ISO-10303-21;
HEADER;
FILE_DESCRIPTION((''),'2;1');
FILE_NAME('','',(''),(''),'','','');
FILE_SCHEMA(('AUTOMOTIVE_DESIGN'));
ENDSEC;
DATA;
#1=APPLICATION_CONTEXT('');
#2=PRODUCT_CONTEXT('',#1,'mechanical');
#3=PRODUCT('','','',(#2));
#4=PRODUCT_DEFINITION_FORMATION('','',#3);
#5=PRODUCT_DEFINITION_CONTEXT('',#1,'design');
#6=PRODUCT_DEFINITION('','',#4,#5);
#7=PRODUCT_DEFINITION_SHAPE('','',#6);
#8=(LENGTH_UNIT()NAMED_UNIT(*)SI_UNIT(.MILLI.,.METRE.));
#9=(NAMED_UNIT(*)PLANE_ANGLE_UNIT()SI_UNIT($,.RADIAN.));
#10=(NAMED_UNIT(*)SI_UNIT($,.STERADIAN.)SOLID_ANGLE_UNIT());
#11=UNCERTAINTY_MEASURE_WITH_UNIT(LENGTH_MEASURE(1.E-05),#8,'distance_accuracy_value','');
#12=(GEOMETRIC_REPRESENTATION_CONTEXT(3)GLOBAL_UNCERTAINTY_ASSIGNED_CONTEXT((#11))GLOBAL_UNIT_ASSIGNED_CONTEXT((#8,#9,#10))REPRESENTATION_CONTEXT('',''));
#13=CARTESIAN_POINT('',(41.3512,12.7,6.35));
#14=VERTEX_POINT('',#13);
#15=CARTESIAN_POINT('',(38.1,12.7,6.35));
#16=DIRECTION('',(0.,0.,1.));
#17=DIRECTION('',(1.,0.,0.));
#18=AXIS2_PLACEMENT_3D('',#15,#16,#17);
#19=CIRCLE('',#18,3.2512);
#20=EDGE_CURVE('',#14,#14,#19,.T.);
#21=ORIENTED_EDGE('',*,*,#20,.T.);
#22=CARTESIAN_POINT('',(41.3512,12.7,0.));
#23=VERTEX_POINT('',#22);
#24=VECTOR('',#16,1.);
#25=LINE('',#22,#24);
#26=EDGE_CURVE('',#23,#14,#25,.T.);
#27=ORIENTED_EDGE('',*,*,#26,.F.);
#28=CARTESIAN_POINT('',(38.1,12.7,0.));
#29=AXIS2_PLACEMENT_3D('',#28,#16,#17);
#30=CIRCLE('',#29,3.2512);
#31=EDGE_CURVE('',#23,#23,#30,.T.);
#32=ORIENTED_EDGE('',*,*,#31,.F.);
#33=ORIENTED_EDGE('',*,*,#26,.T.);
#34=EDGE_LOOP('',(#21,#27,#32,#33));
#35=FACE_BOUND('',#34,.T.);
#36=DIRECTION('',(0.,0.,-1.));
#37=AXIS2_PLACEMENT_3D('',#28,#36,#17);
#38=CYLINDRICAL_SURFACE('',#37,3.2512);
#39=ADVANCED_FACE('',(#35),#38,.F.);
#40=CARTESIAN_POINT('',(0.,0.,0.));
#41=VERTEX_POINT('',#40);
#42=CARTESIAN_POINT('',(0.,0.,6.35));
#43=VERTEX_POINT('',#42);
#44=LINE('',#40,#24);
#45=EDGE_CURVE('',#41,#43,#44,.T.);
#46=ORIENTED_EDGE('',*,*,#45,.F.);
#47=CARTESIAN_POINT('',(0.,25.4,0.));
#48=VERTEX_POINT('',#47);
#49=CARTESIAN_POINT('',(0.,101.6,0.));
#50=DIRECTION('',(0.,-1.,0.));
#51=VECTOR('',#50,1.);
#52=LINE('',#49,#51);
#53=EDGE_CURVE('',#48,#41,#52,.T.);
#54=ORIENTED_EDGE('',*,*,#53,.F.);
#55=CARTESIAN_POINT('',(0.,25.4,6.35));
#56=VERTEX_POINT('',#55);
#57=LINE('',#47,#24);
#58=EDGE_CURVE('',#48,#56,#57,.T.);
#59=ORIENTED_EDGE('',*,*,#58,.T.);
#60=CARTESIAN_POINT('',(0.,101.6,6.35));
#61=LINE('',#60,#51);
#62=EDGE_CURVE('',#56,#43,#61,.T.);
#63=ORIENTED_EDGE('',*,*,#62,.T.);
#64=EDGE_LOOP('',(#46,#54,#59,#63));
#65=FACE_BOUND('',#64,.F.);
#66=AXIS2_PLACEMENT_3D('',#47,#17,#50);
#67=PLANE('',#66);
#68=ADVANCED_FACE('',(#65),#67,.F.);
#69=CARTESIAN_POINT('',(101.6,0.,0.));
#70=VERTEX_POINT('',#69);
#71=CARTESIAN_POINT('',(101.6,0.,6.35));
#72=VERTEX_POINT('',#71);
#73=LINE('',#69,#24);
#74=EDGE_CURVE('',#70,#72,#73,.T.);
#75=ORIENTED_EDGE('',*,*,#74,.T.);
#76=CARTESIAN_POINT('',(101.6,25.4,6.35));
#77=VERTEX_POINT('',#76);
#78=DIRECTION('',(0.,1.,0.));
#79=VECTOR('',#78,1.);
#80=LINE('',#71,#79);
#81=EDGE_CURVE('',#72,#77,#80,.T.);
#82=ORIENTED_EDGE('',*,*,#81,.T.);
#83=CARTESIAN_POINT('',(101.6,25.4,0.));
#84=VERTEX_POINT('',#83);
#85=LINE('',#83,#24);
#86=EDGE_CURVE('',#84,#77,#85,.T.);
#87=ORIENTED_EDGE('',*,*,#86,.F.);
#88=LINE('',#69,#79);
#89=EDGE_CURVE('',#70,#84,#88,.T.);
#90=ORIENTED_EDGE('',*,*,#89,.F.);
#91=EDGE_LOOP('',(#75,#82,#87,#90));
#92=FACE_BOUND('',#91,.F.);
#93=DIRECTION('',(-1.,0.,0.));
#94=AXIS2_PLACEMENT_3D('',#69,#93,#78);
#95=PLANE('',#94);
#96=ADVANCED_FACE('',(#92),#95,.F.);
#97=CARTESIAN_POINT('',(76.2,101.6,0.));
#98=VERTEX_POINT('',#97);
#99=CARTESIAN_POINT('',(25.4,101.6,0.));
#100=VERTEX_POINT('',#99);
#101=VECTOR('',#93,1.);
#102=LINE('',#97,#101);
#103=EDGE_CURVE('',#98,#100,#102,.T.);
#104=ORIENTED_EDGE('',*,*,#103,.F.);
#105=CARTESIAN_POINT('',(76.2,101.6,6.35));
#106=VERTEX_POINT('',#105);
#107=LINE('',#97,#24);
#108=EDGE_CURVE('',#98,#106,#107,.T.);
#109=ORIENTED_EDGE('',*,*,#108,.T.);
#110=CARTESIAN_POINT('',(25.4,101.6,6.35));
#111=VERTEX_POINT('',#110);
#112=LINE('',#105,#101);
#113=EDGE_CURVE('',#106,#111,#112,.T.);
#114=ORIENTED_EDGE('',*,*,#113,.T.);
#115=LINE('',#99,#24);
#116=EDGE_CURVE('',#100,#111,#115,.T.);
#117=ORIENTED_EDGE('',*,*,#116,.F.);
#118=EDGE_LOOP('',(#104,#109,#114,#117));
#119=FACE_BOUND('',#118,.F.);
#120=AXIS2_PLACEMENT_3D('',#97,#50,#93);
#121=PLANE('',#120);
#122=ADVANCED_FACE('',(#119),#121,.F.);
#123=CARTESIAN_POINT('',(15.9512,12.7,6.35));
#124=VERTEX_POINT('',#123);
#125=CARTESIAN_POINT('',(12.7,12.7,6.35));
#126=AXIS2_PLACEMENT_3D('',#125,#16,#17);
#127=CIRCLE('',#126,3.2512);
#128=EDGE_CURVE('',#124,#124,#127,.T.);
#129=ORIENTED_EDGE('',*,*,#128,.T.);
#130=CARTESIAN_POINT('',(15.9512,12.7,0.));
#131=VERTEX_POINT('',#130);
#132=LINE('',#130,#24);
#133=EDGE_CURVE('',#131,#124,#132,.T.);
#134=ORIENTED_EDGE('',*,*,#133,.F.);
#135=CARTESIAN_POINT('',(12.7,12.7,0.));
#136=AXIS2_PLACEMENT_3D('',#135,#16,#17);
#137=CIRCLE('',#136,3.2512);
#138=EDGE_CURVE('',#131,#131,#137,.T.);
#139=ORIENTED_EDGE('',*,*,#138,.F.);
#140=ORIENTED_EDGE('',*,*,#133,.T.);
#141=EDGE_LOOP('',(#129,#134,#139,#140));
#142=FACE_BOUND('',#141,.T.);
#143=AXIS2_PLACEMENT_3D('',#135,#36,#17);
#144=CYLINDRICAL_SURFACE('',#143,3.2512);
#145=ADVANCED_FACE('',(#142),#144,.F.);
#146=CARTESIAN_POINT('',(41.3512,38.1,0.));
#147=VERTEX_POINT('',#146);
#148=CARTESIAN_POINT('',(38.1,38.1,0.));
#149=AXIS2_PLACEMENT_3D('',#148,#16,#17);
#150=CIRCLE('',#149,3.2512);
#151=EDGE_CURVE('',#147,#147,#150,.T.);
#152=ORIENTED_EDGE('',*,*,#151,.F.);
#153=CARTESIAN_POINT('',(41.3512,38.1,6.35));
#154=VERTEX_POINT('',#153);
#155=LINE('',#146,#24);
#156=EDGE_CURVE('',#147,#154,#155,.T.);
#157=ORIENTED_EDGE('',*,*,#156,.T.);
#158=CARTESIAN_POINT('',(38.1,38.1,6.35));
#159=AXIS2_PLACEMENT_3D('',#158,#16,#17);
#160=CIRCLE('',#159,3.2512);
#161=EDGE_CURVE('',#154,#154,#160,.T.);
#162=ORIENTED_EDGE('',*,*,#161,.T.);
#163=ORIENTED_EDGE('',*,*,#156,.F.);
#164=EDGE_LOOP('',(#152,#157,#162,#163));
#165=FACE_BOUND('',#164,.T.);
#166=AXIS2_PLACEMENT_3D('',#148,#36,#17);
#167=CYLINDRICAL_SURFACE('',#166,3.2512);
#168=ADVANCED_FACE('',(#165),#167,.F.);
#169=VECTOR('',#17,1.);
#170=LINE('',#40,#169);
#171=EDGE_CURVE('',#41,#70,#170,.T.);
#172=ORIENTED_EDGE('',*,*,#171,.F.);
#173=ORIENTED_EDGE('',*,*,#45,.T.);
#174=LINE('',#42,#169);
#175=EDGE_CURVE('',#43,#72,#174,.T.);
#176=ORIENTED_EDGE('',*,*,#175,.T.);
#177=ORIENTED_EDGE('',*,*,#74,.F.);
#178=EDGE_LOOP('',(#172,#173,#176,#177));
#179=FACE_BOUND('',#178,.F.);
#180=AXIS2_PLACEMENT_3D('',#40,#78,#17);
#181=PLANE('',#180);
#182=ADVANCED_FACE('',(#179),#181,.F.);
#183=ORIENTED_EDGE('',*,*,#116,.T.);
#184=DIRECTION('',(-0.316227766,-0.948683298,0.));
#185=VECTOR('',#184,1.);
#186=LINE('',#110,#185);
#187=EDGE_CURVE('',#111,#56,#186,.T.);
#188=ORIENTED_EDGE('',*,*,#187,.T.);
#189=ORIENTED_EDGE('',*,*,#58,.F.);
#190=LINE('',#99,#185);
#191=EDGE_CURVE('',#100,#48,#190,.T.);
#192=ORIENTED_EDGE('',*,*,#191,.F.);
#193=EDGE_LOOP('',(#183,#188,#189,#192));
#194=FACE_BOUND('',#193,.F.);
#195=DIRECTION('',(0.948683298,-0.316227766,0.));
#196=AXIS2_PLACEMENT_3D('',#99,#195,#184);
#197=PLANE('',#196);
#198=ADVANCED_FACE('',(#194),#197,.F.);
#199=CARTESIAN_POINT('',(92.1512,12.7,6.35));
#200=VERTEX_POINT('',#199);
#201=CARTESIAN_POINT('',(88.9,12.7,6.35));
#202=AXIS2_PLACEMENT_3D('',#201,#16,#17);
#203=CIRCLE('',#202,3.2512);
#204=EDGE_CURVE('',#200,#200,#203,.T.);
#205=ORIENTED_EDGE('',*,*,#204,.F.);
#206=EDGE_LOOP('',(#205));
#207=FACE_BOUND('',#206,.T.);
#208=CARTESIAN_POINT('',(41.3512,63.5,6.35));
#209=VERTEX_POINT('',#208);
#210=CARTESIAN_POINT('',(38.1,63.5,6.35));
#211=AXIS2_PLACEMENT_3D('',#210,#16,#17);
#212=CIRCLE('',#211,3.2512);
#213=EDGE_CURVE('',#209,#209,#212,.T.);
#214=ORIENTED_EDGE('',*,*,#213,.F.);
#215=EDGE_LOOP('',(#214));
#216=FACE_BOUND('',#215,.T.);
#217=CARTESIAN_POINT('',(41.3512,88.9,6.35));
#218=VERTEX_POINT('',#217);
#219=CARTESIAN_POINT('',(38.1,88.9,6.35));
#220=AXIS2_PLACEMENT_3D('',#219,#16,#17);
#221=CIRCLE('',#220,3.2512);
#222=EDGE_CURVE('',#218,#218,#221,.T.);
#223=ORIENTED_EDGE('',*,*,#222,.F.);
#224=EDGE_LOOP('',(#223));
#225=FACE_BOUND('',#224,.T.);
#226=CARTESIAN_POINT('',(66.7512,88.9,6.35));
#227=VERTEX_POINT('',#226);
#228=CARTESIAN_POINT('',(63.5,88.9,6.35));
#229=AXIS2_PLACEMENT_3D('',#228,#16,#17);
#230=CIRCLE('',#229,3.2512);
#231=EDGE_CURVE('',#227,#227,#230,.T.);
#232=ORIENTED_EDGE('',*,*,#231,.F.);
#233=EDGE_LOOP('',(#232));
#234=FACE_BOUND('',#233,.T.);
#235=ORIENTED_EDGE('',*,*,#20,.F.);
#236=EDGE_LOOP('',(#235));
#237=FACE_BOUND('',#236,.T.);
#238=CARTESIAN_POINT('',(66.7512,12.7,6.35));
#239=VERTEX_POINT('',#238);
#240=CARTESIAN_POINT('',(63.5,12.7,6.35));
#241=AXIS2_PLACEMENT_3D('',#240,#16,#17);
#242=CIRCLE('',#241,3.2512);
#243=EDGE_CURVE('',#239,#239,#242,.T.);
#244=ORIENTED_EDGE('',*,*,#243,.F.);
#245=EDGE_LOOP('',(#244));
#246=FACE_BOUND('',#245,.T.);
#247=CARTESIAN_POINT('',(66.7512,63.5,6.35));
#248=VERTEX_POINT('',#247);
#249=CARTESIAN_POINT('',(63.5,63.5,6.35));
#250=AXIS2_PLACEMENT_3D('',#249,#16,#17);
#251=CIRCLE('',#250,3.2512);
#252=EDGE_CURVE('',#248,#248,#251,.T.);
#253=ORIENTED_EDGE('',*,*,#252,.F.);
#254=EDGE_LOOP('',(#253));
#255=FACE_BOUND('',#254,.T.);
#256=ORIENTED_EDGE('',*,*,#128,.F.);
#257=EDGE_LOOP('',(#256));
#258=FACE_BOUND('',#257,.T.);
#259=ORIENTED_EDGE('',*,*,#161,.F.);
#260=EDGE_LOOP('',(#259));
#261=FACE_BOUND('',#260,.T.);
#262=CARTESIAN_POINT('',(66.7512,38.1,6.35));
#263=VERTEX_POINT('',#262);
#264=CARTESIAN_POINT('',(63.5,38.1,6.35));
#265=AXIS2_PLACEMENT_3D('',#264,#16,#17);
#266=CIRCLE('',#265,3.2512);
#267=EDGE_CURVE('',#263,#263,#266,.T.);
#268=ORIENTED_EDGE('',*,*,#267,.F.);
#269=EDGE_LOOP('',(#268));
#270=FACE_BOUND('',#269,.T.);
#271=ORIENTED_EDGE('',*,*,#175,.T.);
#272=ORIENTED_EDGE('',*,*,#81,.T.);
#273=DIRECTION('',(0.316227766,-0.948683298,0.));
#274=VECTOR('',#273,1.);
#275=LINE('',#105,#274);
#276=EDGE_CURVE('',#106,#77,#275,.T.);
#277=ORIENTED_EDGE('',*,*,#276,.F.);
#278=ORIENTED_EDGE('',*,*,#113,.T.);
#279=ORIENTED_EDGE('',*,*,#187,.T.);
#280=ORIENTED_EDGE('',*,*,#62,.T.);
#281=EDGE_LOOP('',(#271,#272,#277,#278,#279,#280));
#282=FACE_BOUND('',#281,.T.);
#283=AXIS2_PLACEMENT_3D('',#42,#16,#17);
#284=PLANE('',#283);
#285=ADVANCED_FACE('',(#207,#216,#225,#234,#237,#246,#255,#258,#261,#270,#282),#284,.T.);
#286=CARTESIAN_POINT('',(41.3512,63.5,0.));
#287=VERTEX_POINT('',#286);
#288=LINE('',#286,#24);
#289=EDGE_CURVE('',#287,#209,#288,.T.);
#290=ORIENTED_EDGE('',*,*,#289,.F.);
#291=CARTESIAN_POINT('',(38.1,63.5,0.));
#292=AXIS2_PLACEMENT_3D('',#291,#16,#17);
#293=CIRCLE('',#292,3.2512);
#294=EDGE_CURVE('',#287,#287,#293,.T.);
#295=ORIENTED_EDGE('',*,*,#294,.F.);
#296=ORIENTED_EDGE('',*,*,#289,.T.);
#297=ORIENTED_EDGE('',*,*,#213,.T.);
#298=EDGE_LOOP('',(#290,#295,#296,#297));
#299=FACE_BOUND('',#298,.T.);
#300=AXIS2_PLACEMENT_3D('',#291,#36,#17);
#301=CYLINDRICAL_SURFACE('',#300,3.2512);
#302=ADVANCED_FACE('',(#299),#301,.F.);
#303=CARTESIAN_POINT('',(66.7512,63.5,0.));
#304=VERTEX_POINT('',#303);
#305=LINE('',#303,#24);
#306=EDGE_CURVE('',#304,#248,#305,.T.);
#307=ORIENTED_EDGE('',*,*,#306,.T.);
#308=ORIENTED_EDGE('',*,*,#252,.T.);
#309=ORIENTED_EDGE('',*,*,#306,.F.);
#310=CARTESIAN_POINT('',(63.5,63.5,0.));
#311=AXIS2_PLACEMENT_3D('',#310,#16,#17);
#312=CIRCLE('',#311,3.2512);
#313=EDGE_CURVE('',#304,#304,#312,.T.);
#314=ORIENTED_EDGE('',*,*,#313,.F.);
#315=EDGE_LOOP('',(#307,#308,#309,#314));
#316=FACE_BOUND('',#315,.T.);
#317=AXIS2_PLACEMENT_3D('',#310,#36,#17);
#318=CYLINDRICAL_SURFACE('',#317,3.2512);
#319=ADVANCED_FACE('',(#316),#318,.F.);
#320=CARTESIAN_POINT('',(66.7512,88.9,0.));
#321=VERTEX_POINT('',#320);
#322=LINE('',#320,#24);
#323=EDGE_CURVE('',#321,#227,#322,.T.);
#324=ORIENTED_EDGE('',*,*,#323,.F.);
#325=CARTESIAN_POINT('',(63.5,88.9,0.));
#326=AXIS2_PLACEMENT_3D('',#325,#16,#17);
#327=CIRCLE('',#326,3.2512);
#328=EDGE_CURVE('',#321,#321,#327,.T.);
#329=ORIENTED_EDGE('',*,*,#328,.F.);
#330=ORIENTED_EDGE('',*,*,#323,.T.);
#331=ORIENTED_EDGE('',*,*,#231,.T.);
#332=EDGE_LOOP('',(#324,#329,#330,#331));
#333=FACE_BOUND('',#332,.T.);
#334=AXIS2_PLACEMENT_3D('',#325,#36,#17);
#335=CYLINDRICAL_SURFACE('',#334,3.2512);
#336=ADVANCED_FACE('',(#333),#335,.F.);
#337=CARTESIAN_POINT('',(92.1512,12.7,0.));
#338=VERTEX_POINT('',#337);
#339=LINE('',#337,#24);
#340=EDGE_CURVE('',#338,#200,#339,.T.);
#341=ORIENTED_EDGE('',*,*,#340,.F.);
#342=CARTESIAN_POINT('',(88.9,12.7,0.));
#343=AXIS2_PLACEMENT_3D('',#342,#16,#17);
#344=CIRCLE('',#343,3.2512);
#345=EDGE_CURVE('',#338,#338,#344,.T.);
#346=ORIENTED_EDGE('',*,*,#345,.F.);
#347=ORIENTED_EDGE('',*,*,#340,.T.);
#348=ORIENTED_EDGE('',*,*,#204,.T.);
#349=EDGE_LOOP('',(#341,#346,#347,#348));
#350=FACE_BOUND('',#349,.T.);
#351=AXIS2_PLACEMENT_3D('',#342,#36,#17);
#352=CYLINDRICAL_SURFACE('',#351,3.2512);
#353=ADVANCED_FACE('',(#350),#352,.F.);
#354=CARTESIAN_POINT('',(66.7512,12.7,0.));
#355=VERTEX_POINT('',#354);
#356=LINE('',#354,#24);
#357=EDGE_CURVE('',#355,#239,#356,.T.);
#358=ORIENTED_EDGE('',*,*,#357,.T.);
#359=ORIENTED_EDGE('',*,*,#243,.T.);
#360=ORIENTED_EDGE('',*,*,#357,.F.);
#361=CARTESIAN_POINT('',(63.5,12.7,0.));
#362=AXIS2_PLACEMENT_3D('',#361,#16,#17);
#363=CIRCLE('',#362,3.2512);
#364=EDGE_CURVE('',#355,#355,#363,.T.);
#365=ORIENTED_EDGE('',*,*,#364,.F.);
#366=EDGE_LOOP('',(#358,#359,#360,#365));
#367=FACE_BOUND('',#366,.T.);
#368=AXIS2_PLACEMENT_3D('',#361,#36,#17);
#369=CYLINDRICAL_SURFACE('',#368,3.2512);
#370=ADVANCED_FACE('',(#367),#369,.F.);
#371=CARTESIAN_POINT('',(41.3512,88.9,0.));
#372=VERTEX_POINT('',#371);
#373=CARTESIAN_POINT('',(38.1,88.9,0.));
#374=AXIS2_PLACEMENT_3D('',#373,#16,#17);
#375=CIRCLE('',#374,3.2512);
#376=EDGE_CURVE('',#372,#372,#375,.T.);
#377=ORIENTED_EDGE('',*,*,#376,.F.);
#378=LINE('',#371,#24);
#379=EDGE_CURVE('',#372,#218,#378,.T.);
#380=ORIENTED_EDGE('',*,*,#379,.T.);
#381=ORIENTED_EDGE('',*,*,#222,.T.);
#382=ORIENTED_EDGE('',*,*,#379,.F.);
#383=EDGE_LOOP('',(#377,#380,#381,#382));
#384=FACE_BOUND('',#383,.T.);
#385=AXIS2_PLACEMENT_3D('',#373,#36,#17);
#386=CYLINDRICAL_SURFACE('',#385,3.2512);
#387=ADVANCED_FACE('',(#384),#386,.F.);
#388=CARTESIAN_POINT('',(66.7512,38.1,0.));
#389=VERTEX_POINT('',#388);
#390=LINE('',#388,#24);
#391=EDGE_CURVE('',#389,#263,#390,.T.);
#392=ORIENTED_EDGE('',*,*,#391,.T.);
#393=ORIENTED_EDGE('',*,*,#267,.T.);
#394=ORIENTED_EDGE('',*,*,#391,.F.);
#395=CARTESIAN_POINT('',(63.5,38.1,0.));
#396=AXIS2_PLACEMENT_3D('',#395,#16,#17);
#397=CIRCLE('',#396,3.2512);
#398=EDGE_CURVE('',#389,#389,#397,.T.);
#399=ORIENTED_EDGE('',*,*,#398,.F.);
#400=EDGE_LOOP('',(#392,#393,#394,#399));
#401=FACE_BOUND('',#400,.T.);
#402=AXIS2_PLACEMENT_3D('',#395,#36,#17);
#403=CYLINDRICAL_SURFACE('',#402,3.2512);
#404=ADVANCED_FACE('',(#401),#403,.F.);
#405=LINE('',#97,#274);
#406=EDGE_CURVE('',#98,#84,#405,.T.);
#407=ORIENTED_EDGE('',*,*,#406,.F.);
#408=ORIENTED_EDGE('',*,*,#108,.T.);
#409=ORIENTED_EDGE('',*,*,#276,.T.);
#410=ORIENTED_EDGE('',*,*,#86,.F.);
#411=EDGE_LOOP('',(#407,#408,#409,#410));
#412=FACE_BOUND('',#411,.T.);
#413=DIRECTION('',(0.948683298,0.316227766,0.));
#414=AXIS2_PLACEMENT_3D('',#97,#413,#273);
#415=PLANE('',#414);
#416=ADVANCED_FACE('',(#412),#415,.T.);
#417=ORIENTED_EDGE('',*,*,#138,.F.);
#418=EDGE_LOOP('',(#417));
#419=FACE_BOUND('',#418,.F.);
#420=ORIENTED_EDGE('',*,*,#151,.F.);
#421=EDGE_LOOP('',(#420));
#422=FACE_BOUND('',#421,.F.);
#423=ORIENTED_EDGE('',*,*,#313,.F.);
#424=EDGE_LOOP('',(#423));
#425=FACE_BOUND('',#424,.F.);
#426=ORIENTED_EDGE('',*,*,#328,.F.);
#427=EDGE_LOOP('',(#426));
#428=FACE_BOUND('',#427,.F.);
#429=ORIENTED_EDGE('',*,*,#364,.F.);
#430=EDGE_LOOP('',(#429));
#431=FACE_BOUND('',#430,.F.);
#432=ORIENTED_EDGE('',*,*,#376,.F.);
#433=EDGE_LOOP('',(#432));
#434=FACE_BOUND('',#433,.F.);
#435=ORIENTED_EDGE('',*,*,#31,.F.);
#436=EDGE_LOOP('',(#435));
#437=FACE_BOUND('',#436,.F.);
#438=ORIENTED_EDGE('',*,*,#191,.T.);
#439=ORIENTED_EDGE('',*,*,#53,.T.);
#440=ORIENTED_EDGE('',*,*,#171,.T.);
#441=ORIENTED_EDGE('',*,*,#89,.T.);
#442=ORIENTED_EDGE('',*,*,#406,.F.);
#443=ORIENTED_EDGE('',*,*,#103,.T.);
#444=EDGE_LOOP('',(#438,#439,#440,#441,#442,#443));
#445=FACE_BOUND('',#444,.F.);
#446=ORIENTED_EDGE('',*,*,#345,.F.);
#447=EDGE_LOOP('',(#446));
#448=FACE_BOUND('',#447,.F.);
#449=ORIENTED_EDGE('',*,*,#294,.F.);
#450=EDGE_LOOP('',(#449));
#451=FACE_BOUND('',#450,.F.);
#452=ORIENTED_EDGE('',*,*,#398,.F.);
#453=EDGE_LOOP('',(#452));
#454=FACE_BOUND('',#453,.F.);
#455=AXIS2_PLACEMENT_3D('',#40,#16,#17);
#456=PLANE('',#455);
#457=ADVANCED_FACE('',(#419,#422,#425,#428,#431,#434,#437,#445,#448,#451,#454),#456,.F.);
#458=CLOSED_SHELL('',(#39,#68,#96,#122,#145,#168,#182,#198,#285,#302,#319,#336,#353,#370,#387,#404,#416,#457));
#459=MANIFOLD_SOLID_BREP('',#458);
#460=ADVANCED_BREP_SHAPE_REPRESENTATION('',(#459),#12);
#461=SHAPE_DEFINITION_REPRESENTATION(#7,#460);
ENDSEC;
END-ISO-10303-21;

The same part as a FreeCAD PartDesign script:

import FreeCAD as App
import Part
import Sketcher
Q = App.Units.Quantity

doc = App.newDocument("Part")
body = doc.addObject("PartDesign::Body", "Body")

sketch1 = doc.addObject("Sketcher::SketchObject", "Sketch")
body.addObject(sketch1)
sketch1.AttachmentSupport = (doc.XY_Plane, [""])
sketch1.MapMode = "FlatFace"
sketch1.addGeometry([
    Part.LineSegment(App.Vector(0, 25.4, 0), App.Vector(0, 0, 0)),
    Part.LineSegment(App.Vector(0, 0, 0), App.Vector(101.6, 0, 0)),
    Part.LineSegment(App.Vector(101.6, 0, 0), App.Vector(101.6, 25.4, 0)),
    Part.LineSegment(App.Vector(101.6, 25.4, 0), App.Vector(76.2, 101.6, 0)),
    Part.LineSegment(App.Vector(76.2, 101.6, 0), App.Vector(25.4, 101.6, 0)),
    Part.LineSegment(App.Vector(25.4, 101.6, 0), App.Vector(0, 25.4, 0)),
    Part.Circle(App.Vector(12.7, 12.7, 0), App.Vector(0, 0, 1), 3.3),
    Part.Circle(App.Vector(38.1, 12.7, 0), App.Vector(0, 0, 1), 3.3),
    Part.Circle(App.Vector(38.1, 38.1, 0), App.Vector(0, 0, 1), 3.3),
    Part.Circle(App.Vector(63.5, 12.7, 0), App.Vector(0, 0, 1), 3.3),
    Part.Circle(App.Vector(88.9, 12.7, 0), App.Vector(0, 0, 1), 3.3),
    Part.Circle(App.Vector(63.5, 38.1, 0), App.Vector(0, 0, 1), 3.3),
    Part.Circle(App.Vector(38.1, 63.5, 0), App.Vector(0, 0, 1), 3.3),
    Part.Circle(App.Vector(38.1, 88.9, 0), App.Vector(0, 0, 1), 3.3),
    Part.Circle(App.Vector(63.5, 63.5, 0), App.Vector(0, 0, 1), 3.3),
    Part.Circle(App.Vector(63.5, 88.9, 0), App.Vector(0, 0, 1), 3.3),
], False)
sketch1.addConstraint([
    Sketcher.Constraint("Coincident", 0, 2, 1, 1),
    Sketcher.Constraint("Coincident", 1, 2, 2, 1),
    Sketcher.Constraint("Coincident", 2, 2, 3, 1),
    Sketcher.Constraint("Coincident", 3, 2, 4, 1),
    Sketcher.Constraint("Coincident", 4, 2, 5, 1),
    Sketcher.Constraint("Coincident", 5, 2, 0, 1),
    Sketcher.Constraint("Vertical", 0),
    Sketcher.Constraint("Horizontal", 1),
    Sketcher.Constraint("Vertical", 2),
    Sketcher.Constraint("Horizontal", 4),
    Sketcher.Constraint("Coincident", 0, 2, -1, 1),
    Sketcher.Constraint("Equal", 6, 7),
    Sketcher.Constraint("Equal", 7, 8),
    Sketcher.Constraint("Equal", 8, 9),
    Sketcher.Constraint("Equal", 9, 10),
    Sketcher.Constraint("Equal", 10, 11),
    Sketcher.Constraint("Equal", 11, 12),
    Sketcher.Constraint("Equal", 12, 13),
    Sketcher.Constraint("Equal", 13, 14),
    Sketcher.Constraint("Equal", 14, 15),
    Sketcher.Constraint("Horizontal", 6, 3, 7, 3),
    Sketcher.Constraint("Horizontal", 7, 3, 9, 3),
    Sketcher.Constraint("Horizontal", 9, 3, 10, 3),
    Sketcher.Constraint("Horizontal", 8, 3, 11, 3),
    Sketcher.Constraint("Horizontal", 12, 3, 14, 3),
    Sketcher.Constraint("Horizontal", 13, 3, 15, 3),
    Sketcher.Constraint("Horizontal", 2, 2, 5, 2),
    Sketcher.Constraint("Vertical", 7, 3, 8, 3),
    Sketcher.Constraint("Vertical", 9, 3, 11, 3),
    Sketcher.Constraint("Vertical", 8, 3, 12, 3),
    Sketcher.Constraint("Vertical", 12, 3, 13, 3),
    Sketcher.Constraint("Vertical", 11, 3, 14, 3),
    Sketcher.Constraint("Vertical", 14, 3, 15, 3),
    Sketcher.Constraint("Equal", 3, 5),
    Sketcher.Constraint("DistanceX", 1, 1, 1, 2, Q("4 in")),
    Sketcher.Constraint("DistanceY", 0, 2, 0, 1, Q("1 in")),
    Sketcher.Constraint("Diameter", 6, Q("0.256 in")),
    Sketcher.Constraint("DistanceY", -1, 1, 3, 2, Q("4 in")),
    Sketcher.Constraint("DistanceX", -1, 1, 4, 2, Q("1 in")),
    Sketcher.Constraint("DistanceX", 6, 3, 7, 3, Q("1 in")),
    Sketcher.Constraint("DistanceY", 7, 3, 8, 3, Q("1 in")),
    Sketcher.Constraint("DistanceX", 7, 3, 9, 3, Q("1 in")),
    Sketcher.Constraint("DistanceX", 9, 3, 10, 3, Q("1 in")),
    Sketcher.Constraint("DistanceY", 8, 3, 12, 3, Q("1 in")),
    Sketcher.Constraint("DistanceY", 12, 3, 13, 3, Q("1 in")),
    Sketcher.Constraint("DistanceX", -1, 1, 6, 3, Q("0.5 in")),
    Sketcher.Constraint("DistanceY", -1, 1, 6, 3, Q("0.5 in")),
])
pad1 = doc.addObject("PartDesign::Pad", "Pad")
body.addObject(pad1)
pad1.Profile = sketch1
pad1.Length = Q("0.25 in")

doc.recompute()
